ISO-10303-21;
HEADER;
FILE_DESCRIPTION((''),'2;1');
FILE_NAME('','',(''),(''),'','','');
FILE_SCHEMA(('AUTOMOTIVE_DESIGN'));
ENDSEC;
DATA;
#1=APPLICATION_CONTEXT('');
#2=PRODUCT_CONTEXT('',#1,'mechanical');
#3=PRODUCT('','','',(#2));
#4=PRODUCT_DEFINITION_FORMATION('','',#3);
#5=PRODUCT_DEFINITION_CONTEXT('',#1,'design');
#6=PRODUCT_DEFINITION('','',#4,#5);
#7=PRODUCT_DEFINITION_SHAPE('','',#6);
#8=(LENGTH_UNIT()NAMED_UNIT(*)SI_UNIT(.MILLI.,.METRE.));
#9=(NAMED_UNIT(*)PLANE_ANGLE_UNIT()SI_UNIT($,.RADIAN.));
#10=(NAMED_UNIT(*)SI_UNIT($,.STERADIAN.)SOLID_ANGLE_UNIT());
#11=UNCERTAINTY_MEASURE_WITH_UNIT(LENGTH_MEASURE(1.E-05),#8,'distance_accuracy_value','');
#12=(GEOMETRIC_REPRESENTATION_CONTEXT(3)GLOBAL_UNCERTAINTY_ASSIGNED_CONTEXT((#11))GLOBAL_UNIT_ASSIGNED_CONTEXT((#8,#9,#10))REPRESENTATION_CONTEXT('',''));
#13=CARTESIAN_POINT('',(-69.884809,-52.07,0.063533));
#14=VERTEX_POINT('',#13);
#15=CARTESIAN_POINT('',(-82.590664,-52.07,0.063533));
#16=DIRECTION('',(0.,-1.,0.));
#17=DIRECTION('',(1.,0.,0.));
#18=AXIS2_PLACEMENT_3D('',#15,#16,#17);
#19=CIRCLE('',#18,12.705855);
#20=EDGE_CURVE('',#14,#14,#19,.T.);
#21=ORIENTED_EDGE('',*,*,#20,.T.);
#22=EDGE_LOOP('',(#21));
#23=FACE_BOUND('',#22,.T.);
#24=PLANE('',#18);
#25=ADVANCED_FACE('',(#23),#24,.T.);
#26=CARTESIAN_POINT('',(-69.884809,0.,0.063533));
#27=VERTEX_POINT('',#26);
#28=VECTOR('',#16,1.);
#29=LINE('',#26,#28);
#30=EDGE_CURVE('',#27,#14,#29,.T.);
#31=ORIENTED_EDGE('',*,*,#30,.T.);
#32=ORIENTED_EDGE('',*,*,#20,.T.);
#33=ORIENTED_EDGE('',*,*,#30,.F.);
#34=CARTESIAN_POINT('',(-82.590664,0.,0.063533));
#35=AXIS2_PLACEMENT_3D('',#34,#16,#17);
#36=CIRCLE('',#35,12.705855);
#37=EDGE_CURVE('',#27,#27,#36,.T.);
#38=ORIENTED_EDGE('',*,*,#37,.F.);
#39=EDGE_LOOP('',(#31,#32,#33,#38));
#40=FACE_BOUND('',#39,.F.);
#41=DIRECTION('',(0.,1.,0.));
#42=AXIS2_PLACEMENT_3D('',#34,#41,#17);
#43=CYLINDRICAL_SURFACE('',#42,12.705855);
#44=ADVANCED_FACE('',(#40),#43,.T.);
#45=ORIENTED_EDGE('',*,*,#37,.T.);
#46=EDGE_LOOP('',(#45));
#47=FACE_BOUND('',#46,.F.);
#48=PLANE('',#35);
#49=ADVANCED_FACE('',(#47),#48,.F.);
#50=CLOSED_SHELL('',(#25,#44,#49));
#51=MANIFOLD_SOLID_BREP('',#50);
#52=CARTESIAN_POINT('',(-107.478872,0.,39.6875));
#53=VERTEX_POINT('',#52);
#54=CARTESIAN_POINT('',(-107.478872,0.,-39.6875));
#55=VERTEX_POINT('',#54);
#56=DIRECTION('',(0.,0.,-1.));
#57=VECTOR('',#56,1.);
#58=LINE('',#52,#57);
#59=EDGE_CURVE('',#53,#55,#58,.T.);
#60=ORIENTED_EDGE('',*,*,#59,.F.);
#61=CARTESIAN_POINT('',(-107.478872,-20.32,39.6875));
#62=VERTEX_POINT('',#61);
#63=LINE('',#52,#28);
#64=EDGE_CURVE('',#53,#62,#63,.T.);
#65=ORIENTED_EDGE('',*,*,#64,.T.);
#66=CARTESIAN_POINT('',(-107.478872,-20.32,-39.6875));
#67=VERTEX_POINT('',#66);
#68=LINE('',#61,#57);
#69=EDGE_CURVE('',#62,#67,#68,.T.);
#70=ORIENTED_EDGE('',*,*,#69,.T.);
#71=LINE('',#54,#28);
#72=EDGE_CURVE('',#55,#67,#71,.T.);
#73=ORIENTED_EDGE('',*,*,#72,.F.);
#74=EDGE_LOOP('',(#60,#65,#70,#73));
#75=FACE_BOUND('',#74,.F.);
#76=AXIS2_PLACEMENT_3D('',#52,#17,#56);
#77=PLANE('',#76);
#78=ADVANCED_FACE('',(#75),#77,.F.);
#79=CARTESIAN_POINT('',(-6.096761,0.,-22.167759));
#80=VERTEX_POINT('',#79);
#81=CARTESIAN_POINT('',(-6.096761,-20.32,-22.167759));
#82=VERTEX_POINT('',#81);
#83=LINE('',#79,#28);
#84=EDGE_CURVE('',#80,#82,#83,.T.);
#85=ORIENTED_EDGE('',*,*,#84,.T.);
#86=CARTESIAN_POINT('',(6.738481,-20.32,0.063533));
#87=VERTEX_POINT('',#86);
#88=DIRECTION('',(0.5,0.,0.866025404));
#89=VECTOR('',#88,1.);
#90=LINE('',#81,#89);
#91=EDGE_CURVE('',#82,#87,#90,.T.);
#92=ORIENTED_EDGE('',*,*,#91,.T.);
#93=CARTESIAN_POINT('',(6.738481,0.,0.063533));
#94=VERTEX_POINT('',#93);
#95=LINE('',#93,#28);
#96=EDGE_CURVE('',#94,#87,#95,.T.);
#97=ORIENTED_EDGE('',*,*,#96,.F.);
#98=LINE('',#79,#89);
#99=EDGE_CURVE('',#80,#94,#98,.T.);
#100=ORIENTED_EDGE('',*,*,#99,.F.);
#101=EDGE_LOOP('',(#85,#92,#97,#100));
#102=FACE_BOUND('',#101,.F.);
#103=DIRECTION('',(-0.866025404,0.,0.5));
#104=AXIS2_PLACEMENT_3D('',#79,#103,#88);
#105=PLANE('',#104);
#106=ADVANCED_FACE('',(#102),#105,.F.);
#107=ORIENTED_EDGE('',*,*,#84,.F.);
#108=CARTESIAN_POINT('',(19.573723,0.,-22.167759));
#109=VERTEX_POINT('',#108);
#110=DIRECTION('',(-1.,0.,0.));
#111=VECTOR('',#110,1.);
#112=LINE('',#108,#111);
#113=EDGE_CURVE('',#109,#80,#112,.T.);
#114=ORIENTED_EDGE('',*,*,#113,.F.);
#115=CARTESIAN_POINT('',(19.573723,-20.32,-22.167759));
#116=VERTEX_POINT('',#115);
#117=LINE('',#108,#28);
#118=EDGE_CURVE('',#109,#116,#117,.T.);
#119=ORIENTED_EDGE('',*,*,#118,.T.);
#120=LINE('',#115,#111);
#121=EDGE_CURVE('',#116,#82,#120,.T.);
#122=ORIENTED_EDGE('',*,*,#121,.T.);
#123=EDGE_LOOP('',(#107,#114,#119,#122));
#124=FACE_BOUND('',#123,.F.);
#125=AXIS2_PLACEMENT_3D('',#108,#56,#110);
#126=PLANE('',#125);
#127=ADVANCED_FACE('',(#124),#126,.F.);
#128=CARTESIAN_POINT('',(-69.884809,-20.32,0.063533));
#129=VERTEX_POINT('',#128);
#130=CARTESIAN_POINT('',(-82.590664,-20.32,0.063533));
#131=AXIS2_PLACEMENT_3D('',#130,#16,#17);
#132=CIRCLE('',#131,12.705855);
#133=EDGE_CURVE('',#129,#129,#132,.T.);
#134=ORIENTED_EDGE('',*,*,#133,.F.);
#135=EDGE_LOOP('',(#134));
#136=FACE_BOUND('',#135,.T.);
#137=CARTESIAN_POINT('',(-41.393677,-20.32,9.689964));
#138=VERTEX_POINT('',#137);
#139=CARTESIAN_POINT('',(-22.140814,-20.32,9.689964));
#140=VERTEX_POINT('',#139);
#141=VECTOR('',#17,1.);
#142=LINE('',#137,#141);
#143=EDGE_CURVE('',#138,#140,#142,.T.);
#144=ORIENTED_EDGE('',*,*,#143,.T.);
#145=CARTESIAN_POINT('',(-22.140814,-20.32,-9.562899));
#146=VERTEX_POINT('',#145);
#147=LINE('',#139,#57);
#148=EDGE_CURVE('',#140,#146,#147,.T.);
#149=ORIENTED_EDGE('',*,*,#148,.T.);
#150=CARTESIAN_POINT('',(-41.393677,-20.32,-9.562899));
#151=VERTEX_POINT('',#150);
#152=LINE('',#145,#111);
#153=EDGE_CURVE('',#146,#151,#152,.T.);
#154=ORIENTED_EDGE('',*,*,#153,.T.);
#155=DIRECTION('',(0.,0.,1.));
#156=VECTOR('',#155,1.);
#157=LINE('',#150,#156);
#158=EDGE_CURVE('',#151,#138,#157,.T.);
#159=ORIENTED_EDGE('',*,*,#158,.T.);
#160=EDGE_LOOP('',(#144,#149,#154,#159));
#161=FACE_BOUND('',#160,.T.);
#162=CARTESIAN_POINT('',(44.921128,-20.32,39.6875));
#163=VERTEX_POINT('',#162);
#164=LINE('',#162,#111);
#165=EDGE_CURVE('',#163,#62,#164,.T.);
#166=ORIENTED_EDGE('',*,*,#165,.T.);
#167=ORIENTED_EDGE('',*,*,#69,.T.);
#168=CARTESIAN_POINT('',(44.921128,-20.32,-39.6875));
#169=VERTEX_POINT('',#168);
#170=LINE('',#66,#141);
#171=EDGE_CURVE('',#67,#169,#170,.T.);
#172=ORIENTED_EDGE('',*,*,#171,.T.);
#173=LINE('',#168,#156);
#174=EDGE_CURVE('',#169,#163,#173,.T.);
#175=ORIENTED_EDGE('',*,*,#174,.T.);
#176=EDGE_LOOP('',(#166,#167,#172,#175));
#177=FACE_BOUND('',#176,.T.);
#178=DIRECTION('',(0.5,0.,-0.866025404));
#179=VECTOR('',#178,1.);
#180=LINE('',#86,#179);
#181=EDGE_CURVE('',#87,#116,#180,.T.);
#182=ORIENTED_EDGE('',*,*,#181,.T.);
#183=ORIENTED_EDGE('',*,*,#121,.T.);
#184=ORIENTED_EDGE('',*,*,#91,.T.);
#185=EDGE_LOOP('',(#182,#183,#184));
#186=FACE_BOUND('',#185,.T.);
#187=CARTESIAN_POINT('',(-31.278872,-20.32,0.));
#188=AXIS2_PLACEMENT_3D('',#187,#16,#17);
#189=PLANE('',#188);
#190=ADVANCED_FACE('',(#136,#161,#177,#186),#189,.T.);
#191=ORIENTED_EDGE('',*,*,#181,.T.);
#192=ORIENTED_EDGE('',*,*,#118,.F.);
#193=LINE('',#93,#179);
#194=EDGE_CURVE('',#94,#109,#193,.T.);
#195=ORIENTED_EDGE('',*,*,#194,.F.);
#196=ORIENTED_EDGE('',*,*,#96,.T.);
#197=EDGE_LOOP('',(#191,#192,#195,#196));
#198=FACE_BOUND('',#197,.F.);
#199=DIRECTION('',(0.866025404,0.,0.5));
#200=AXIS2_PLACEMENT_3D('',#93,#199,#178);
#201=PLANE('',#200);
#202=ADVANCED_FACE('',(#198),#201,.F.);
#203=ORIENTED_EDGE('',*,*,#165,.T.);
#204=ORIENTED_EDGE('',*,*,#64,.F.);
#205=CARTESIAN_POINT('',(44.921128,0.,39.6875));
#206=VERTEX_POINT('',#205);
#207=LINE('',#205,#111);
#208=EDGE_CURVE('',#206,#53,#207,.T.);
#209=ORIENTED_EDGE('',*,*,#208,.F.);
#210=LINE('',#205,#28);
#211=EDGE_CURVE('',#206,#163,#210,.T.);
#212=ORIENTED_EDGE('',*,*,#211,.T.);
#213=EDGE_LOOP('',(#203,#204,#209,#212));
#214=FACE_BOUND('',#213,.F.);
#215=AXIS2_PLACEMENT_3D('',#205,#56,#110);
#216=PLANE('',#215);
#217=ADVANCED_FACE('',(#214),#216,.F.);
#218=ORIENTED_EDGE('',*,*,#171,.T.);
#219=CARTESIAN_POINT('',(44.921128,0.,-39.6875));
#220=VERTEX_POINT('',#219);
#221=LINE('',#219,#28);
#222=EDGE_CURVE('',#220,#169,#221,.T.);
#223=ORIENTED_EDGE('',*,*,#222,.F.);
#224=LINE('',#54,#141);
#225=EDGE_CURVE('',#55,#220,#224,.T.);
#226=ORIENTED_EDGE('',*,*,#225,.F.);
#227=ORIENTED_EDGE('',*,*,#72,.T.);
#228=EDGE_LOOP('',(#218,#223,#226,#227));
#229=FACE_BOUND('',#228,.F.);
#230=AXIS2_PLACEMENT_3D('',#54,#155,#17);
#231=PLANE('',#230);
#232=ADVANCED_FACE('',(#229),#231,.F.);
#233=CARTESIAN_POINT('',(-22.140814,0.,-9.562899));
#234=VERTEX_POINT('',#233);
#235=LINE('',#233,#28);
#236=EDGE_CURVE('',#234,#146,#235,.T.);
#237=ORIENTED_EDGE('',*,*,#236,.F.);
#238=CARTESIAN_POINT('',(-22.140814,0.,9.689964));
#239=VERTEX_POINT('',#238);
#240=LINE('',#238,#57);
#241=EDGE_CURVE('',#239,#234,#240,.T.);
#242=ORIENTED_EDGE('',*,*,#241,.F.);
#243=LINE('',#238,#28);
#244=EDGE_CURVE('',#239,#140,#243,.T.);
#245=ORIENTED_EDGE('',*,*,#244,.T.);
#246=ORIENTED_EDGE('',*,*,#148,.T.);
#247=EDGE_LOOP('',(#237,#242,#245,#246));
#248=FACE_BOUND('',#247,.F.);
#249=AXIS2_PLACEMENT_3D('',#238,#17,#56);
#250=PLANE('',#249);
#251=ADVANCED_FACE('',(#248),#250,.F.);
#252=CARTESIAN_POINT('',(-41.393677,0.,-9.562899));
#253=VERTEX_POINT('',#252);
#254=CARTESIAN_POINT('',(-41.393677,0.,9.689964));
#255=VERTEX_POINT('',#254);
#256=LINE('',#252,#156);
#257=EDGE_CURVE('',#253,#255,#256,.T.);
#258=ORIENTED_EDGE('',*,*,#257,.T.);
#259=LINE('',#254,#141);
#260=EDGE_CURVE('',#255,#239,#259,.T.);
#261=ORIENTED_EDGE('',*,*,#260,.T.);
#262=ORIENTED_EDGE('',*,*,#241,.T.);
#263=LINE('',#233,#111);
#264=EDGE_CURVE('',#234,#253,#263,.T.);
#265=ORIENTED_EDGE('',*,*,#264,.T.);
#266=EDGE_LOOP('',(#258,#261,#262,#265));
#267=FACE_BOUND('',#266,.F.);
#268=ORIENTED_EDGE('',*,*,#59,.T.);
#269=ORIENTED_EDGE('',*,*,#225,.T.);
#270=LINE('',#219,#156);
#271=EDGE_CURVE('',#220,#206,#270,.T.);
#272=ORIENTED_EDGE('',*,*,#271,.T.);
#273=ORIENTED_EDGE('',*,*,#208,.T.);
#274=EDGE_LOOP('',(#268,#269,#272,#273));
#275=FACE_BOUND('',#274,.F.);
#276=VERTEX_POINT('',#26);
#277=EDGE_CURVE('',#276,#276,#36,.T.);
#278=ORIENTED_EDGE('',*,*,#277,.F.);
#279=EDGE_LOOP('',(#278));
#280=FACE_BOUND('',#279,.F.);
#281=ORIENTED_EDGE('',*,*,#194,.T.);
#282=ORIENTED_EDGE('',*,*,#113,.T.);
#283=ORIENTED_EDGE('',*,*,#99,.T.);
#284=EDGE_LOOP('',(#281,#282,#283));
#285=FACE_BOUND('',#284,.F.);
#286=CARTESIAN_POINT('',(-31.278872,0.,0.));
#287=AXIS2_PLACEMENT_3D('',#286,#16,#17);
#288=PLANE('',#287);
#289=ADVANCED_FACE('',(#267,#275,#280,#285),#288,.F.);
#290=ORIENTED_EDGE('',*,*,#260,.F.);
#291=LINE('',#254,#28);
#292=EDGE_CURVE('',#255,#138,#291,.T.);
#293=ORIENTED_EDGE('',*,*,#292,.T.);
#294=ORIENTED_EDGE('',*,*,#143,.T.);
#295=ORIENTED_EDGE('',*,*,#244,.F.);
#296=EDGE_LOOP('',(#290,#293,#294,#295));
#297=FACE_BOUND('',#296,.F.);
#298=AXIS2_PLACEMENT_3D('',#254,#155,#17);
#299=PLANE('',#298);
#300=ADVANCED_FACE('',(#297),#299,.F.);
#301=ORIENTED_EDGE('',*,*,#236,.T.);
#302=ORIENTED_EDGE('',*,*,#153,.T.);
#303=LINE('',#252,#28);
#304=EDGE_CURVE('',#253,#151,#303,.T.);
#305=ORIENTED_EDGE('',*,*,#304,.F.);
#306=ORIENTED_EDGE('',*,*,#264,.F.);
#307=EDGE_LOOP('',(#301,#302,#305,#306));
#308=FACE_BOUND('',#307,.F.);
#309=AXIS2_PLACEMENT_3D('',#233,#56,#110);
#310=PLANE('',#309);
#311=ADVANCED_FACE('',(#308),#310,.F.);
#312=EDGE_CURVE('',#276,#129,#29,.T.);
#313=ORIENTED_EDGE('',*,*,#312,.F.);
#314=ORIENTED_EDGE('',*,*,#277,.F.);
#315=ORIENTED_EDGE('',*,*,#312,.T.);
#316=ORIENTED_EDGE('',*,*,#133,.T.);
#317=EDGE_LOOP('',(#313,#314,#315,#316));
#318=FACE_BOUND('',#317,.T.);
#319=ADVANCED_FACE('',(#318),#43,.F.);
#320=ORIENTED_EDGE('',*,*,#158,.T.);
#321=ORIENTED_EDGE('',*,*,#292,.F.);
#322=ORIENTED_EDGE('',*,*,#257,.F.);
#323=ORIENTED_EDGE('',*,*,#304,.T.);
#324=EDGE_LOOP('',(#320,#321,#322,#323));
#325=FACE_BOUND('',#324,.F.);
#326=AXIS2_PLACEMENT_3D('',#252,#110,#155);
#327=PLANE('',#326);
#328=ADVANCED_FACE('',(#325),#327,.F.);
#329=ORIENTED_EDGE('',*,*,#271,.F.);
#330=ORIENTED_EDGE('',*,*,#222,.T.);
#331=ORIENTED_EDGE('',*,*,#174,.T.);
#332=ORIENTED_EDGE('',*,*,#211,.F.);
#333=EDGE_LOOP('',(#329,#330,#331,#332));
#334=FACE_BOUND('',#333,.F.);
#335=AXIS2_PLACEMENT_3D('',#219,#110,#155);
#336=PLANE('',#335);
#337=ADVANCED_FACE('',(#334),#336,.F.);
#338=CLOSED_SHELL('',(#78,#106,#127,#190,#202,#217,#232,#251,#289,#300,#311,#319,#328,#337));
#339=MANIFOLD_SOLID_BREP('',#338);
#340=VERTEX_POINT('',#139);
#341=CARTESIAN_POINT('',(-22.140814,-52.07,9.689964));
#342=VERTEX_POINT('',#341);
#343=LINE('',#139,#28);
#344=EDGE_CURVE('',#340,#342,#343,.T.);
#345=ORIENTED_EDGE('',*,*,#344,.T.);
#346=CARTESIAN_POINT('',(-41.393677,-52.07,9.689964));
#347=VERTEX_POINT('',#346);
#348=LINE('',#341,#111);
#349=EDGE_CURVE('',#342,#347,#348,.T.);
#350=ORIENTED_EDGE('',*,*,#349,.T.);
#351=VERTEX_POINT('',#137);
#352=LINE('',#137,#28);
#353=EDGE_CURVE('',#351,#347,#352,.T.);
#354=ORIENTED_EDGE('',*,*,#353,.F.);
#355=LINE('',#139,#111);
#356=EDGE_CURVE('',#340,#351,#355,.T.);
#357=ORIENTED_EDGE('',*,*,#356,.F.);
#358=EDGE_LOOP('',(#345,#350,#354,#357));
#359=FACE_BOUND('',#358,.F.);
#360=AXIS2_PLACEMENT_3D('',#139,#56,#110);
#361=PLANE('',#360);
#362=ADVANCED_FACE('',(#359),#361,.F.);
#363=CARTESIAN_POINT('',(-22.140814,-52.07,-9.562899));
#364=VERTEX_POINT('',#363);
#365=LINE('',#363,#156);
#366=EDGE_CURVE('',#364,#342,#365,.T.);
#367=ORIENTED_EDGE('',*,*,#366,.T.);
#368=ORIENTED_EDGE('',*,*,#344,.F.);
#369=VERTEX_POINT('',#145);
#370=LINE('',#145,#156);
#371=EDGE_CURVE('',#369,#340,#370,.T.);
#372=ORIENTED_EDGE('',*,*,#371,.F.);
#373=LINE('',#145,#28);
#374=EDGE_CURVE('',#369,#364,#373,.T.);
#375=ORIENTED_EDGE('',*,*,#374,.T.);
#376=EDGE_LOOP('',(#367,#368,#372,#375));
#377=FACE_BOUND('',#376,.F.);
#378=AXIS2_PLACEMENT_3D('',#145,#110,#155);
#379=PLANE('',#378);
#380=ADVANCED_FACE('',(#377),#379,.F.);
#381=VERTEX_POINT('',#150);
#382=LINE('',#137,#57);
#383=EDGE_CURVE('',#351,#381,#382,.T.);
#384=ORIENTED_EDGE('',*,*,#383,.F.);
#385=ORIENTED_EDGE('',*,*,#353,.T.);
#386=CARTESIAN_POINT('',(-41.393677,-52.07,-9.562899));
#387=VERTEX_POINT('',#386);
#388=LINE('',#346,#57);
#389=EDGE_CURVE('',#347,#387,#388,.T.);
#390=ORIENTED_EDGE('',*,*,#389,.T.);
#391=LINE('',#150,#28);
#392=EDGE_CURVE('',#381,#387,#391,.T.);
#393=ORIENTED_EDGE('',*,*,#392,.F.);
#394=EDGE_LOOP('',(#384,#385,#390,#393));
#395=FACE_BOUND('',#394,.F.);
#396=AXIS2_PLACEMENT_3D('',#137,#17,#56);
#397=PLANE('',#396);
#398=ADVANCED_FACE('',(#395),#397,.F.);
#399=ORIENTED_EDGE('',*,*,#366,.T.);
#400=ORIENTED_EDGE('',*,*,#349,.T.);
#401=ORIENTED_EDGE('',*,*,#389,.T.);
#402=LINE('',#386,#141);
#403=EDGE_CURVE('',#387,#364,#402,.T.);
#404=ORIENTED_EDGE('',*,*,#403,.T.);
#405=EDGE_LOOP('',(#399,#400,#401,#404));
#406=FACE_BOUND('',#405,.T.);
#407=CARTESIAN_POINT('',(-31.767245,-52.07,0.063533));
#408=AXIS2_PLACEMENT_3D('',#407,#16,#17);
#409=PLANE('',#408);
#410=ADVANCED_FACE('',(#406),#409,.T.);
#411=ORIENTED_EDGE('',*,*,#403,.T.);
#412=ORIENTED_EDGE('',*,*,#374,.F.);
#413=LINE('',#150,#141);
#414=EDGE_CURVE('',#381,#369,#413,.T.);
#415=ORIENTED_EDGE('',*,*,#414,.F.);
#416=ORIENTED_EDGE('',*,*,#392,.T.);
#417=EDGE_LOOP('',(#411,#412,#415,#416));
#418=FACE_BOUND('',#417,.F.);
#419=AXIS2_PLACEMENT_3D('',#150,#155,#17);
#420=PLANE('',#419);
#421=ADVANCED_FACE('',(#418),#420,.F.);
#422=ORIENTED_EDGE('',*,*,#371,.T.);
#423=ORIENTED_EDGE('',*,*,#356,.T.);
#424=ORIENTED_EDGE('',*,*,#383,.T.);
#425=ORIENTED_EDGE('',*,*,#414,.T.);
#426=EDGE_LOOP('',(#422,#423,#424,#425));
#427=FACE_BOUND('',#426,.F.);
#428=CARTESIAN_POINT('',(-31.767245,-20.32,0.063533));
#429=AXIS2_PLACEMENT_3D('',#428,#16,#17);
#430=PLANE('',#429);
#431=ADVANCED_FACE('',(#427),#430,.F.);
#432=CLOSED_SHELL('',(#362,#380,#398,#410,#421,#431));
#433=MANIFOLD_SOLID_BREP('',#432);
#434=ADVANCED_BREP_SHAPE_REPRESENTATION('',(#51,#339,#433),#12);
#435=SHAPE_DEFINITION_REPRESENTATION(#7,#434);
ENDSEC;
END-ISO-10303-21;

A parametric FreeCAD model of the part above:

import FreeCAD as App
import Part
import Sketcher

V = App.Vector
Q = App.Units.Quantity

doc = App.newDocument("Part")
body = doc.addObject("PartDesign::Body", "Body")

# Sketch on XZ plane
sketch1 = body.newObject("Sketcher::SketchObject", "Sketch")
sketch1.AttachmentSupport = (doc.getObject("XZ_Plane"), [""])
sketch1.MapMode = "FlatFace"
sketch1.addGeometry([
    Part.LineSegment(V(44.921128, -39.6875, 0), V(44.921128, 39.6875, 0)),  # 0
    Part.LineSegment(V(44.921128, 39.6875, 0), V(-107.478872, 39.6875, 0)),  # 1
    Part.LineSegment(V(-107.478872, 39.6875, 0), V(-107.478872, -39.6875, 0)),  # 2
    Part.LineSegment(V(-107.478872, -39.6875, 0), V(44.921128, -39.6875, 0)),  # 3
    Part.LineSegment(V(19.573723, -22.167759, 0), V(-6.096761, -22.167759, 0)),  # 4
    Part.LineSegment(V(-6.096761, -22.167759, 0), V(6.738481, 0.063533, 0)),  # 5
    Part.LineSegment(V(6.738481, 0.063533, 0), V(19.573723, -22.167759, 0)),  # 6
    Part.Circle(V(-82.590664, 0.063533, 0), V(0, 0, 1), 12.705855),  # 7
    Part.LineSegment(V(-41.393677, -9.562899, 0), V(-41.393677, 9.689964, 0)),  # 8
    Part.LineSegment(V(-41.393677, 9.689964, 0), V(-22.140814, 9.689964, 0)),  # 9
    Part.LineSegment(V(-22.140814, 9.689964, 0), V(-22.140814, -9.562899, 0)),  # 10
    Part.LineSegment(V(-22.140814, -9.562899, 0), V(-41.393677, -9.562899, 0)),  # 11
], False)
sketch1.addConstraint([
    Sketcher.Constraint("Coincident", 0, 2, 1, 1),
    Sketcher.Constraint("Coincident", 1, 2, 2, 1),
    Sketcher.Constraint("Coincident", 2, 2, 3, 1),
    Sketcher.Constraint("Coincident", 3, 2, 0, 1),
    Sketcher.Constraint("Coincident", 4, 2, 5, 1),
    Sketcher.Constraint("Coincident", 5, 2, 6, 1),
    Sketcher.Constraint("Coincident", 6, 2, 4, 1),
    Sketcher.Constraint("Coincident", 8, 2, 9, 1),
    Sketcher.Constraint("Coincident", 9, 2, 10, 1),
    Sketcher.Constraint("Coincident", 10, 2, 11, 1),
    Sketcher.Constraint("Coincident", 11, 2, 8, 1),
    Sketcher.Constraint("Vertical", 0),
    Sketcher.Constraint("Horizontal", 1),
    Sketcher.Constraint("Vertical", 2),
    Sketcher.Constraint("Horizontal", 3),
    Sketcher.Constraint("Horizontal", 4),
    Sketcher.Constraint("Vertical", 8),
    Sketcher.Constraint("Horizontal", 9),
    Sketcher.Constraint("Vertical", 10),
    Sketcher.Constraint("Horizontal", 11),
    Sketcher.Constraint("Horizontal", 7, 3, 5, 2),
    Sketcher.Constraint("Equal", 11, 8),
    Sketcher.Constraint("Equal", 5, 6),
    Sketcher.Constraint("DistanceX", 1, 2, 1, 1, Q("6 in")),
    Sketcher.Constraint("Angle", 5, Q("60 deg")),
    Sketcher.Constraint("DistanceY", 0, 1, 0, 2, Q("3.125 in")),
    Sketcher.Constraint("Diameter", 7, 25.411709),
    Sketcher.Constraint("DistanceY", -1, 1, 0, 2, Q("1.5625 in")),
    Sketcher.Constraint("DistanceY", 10, 2, -1, 1, 9.562899),
    Sketcher.Constraint("DistanceX", 8, 2, 6, 2, 60.9674),
    Sketcher.Constraint("DistanceX", 4, 2, 4, 1, 25.670484),
    Sketcher.Constraint("DistanceX", 9, 1, 9, 2, 19.252863),
    Sketcher.Constraint("DistanceX", -1, 1, 0, 2, 44.921128),
    Sketcher.Constraint("DistanceX", 4, 2, -1, 1, 6.096761),
    Sketcher.Constraint("DistanceY", 4, 2, -1, 1, 22.167759),
    Sketcher.Constraint("DistanceX", 7, 3, 0, 2, 127.511792),
])
pad1 = body.newObject("PartDesign::Pad", "Pad")
pad1.Profile = sketch1
pad1.Length = Q("0.8 in")
body2 = doc.addObject("PartDesign::Body", "Body001")

# Sketch on XZ plane
sketch2 = body2.newObject("Sketcher::SketchObject", "Sketch001")
sketch2.AttachmentSupport = (doc.getObject("XZ_Plane001"), [""])
sketch2.MapMode = "FlatFace"
sketch2.addGeometry(Part.Circle(V(-82.590664, 0.063533, 0), V(0, 0, 1), 12.705855), False)
sketch2.addConstraint([
    Sketcher.Constraint("Diameter", 0, 25.411709),
    Sketcher.Constraint("DistanceX", 0, 3, -1, 1, 82.590664),
    Sketcher.Constraint("DistanceY", -1, 1, 0, 3, 0.063533),
])
pad2 = body2.newObject("PartDesign::Pad", "Pad001")
pad2.Profile = sketch2
pad2.Length = Q("2.05 in")
body3 = doc.addObject("PartDesign::Body", "Body002")

# Sketch on XZ plane
sketch3 = body3.newObject("Sketcher::SketchObject", "Sketch002")
sketch3.AttachmentSupport = (doc.getObject("XZ_Plane002"), [""])
sketch3.MapMode = "FlatFace"
sketch3.AttachmentOffset = App.Placement(V(0, 0, 0.8 * 25.4), App.Rotation())
sketch3.addGeometry([
    Part.LineSegment(V(-22.140814, 9.689964, 0), V(-41.393677, 9.689964, 0)),
    Part.LineSegment(V(-41.393677, 9.689964, 0), V(-41.393677, -9.562899, 0)),
    Part.LineSegment(V(-41.393677, -9.562899, 0), V(-22.140814, -9.562899, 0)),
    Part.LineSegment(V(-22.140814, -9.562899, 0), V(-22.140814, 9.689964, 0)),
], False)
sketch3.addConstraint([
    Sketcher.Constraint("Coincident", 0, 2, 1, 1),
    Sketcher.Constraint("Coincident", 1, 2, 2, 1),
    Sketcher.Constraint("Coincident", 2, 2, 3, 1),
    Sketcher.Constraint("Coincident", 3, 2, 0, 1),
    Sketcher.Constraint("Horizontal", 0),
    Sketcher.Constraint("Vertical", 1),
    Sketcher.Constraint("Horizontal", 2),
    Sketcher.Constraint("Vertical", 3),
    Sketcher.Constraint("Equal", 2, 1),
    Sketcher.Constraint("DistanceY", 1, 2, -1, 1, 9.562899),
    Sketcher.Constraint("DistanceX", 0, 2, 0, 1, 19.252863),
    Sketcher.Constraint("DistanceX", 0, 2, -1, 1, 41.393677),
])
pad3 = body3.newObject("PartDesign::Pad", "Pad002")
pad3.Profile = sketch3
pad3.Length = Q("1.25 in")

doc.recompute()
